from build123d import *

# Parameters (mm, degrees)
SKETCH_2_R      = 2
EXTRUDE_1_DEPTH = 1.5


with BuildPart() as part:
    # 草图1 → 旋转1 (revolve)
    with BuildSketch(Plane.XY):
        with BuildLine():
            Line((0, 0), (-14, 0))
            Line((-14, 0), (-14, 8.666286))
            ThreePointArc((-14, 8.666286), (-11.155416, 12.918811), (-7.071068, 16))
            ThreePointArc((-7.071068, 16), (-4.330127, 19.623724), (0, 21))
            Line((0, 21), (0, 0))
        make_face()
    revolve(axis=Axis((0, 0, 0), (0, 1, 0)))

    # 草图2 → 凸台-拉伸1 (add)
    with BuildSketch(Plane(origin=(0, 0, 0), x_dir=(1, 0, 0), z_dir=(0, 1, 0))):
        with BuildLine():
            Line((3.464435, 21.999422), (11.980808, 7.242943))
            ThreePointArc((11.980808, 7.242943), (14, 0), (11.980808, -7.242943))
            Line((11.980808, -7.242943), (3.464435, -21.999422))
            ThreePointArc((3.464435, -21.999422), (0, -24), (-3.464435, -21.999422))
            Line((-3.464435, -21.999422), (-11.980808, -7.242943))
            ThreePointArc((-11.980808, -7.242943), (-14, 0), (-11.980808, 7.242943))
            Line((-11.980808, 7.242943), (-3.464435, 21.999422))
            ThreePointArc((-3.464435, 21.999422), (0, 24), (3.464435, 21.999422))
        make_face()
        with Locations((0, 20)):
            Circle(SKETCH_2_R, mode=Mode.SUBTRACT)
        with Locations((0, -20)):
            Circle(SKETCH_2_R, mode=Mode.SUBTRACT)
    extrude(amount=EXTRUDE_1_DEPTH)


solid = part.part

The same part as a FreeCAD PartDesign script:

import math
import FreeCAD as App
import Part
import Sketcher
Q = App.Units.Quantity

doc = App.newDocument("Part")
body = doc.addObject("PartDesign::Body", "Body")

# Sketch on XY plane
sketch1 = doc.addObject("Sketcher::SketchObject", "Sketch")
body.addObject(sketch1)
sketch1.AttachmentSupport = (doc.XY_Plane, [""])
sketch1.MapMode = "FlatFace"
sketch1.addGeometry(Part.LineSegment(App.Vector(-14, 0, 0), App.Vector(0, 0, 0)), False)
sketch1.addGeometry(Part.LineSegment(App.Vector(0, 0, 0), App.Vector(0, 21, 0)), False)
sketch1.addGeometry(Part.ArcOfCircle(Part.Circle(App.Vector(0, 13, 0), App.Vector(0, 0, 1), 8), math.radians(90), math.radians(161)), False)
sketch1.addGeometry(Part.ArcOfCircle(Part.Circle(App.Vector(0, 2, 0), App.Vector(0, 0, 1), 15), math.radians(117), math.radians(156)), False)
sketch1.addGeometry(Part.LineSegment(App.Vector(-14, 9, 0), App.Vector(-14, 0, 0)), False)
sketch1.addConstraint(Sketcher.Constraint("Coincident", 0, 2, 1, 1))
sketch1.addConstraint(Sketcher.Constraint("Coincident", 1, 2, 2, 1))
sketch1.addConstraint(Sketcher.Constraint("Coincident", 2, 2, 3, 1))
sketch1.addConstraint(Sketcher.Constraint("Coincident", 3, 2, 4, 1))
sketch1.addConstraint(Sketcher.Constraint("Coincident", 4, 2, 0, 1))
sketch1.addConstraint(Sketcher.Constraint("Horizontal", 0))
sketch1.addConstraint(Sketcher.Constraint("Vertical", 1))
sketch1.addConstraint(Sketcher.Constraint("Vertical", 4))
sketch1.addConstraint(Sketcher.Constraint("Coincident", 0, 2, -1, 1))
sketch1.addConstraint(Sketcher.Constraint("PointOnObject", 2, 3, -2))
sketch1.addConstraint(Sketcher.Constraint("Radius", 2, Q("7.500002 mm")))
sketch1.addConstraint(Sketcher.Constraint("DistanceX", 0, 1, 0, 2, Q("14 mm")))
sketch1.addConstraint(Sketcher.Constraint("DistanceY", 1, 1, 1, 2, Q("21 mm")))
sketch1.addConstraint(Sketcher.Constraint("DistanceY", -1, 1, 2, 2, Q("16 mm")))
sketch1.addConstraint(Sketcher.Constraint("Radius", 3, Q("15.346948 mm")))
sketch1.addConstraint(Sketcher.Constraint("DistanceY", 4, 2, 4, 1, Q("8.666286 mm")))
revolution = doc.addObject("PartDesign::Revolution", "Revolution")
body.addObject(revolution)
revolution.Profile = sketch1
revolution.ReferenceAxis = (sketch1, ["V_Axis"])
revolution.Angle = 360

# Sketch on XZ plane
sketch2 = doc.addObject("Sketcher::SketchObject", "Sketch001")
body.addObject(sketch2)
sketch2.AttachmentSupport = (doc.XZ_Plane, [""])
sketch2.MapMode = "FlatFace"
sketch2.addGeometry(Part.LineSegment(App.Vector(11.980808, -7.242943, 0), App.Vector(3.464435, -21.999422, 0)), False)
sketch2.addGeometry(Part.ArcOfCircle(Part.Circle(App.Vector(0, -20, 0), App.Vector(0, 0, 1), 4), math.radians(-150.009563), math.radians(-29.990437)), False)
sketch2.addGeometry(Part.LineSegment(App.Vector(-3.464435, -21.999422, 0), App.Vector(-11.980808, -7.242943, 0)), False)
sketch2.addGeometry(Part.ArcOfCircle(Part.Circle(App.Vector(-0.000004, 0, 0), App.Vector(0, 0, 1), 13.999996), math.radians(148.845122), math.radians(211.154878)), False)
sketch2.addGeometry(Part.LineSegment(App.Vector(-11.980808, 7.242943, 0), App.Vector(-3.464435, 21.999422, 0)), False)
sketch2.addGeometry(Part.ArcOfCircle(Part.Circle(App.Vector(0, 20, 0), App.Vector(0, 0, 1), 4), math.radians(29.990437), math.radians(150.009563)), False)
sketch2.addGeometry(Part.LineSegment(App.Vector(3.464435, 21.999422, 0), App.Vector(11.980808, 7.242943, 0)), False)
sketch2.addGeometry(Part.ArcOfCircle(Part.Circle(App.Vector(0.000004, 0, 0), App.Vector(0, 0, 1), 13.999996), math.radians(-31.154878), math.radians(31.154878)), False)
sketch2.addGeometry(Part.Circle(App.Vector(0, 20, 0), App.Vector(0, 0, 1), 2), False)
sketch2.addGeometry(Part.Circle(App.Vector(0, -20, 0), App.Vector(0, 0, 1), 2), False)
sketch2.addConstraint(Sketcher.Constraint("Coincident", 0, 2, 1, 2))
sketch2.addConstraint(Sketcher.Constraint("Coincident", 1, 1, 2, 1))
sketch2.addConstraint(Sketcher.Constraint("Coincident", 2, 2, 3, 2))
sketch2.addConstraint(Sketcher.Constraint("Coincident", 3, 1, 4, 1))
sketch2.addConstraint(Sketcher.Constraint("Coincident", 4, 2, 5, 2))
sketch2.addConstraint(Sketcher.Constraint("Coincident", 5, 1, 6, 1))
sketch2.addConstraint(Sketcher.Constraint("Coincident", 6, 2, 7, 2))
sketch2.addConstraint(Sketcher.Constraint("Coincident", 7, 1, 0, 1))
sketch2.addConstraint(Sketcher.Constraint("Coincident", 3, 3, -1, 1))
sketch2.addConstraint(Sketcher.Constraint("Coincident", 7, 3, -1, 1))
sketch2.addConstraint(Sketcher.Constraint("Coincident", 8, 3, 5, 3))
sketch2.addConstraint(Sketcher.Constraint("Coincident", 9, 3, 1, 3))
sketch2.addConstraint(Sketcher.Constraint("PointOnObject", 1, 3, -2))
sketch2.addConstraint(Sketcher.Constraint("PointOnObject", 5, 3, -2))
sketch2.addConstraint(Sketcher.Constraint("Diameter", 8, Q("4 mm")))
sketch2.addConstraint(Sketcher.Constraint("Diameter", 9, Q("4 mm")))
sketch2.addConstraint(Sketcher.Constraint("Radius", 1, Q("4 mm")))
sketch2.addConstraint(Sketcher.Constraint("Radius", 5, Q("4 mm")))
sketch2.addConstraint(Sketcher.Constraint("DistanceY", 1, 3, -1, 1, Q("20 mm")))
sketch2.addConstraint(Sketcher.Constraint("DistanceY", -1, 1, 5, 3, Q("20 mm")))
sketch2.addConstraint(Sketcher.Constraint("Radius", 3, Q("13.999996 mm")))
sketch2.addConstraint(Sketcher.Constraint("Radius", 7, Q("13.999996 mm")))
sketch2.addConstraint(Sketcher.Constraint("DistanceY", 0, 2, -1, 1, Q("21.999422 mm")))
sketch2.addConstraint(Sketcher.Constraint("DistanceY", -1, 1, 4, 2, Q("21.999422 mm")))
sketch2.addConstraint(Sketcher.Constraint("DistanceY", 1, 1, 1, 3, Q("1.999422 mm")))
sketch2.addConstraint(Sketcher.Constraint("DistanceY", 1, 1, 2, 2, Q("14.756479 mm")))
sketch2.addConstraint(Sketcher.Constraint("DistanceY", 3, 1, 4, 2, Q("14.756479 mm")))
sketch2.addConstraint(Sketcher.Constraint("DistanceY", 5, 3, 5, 1, Q("1.999422 mm")))
sketch2.addConstraint(Sketcher.Constraint("DistanceY", 6, 2, 5, 1, Q("14.756479 mm")))
sketch2.addConstraint(Sketcher.Constraint("DistanceY", 0, 2, 7, 1, Q("14.756479 mm")))
pad1 = doc.addObject("PartDesign::Pad", "Pad")
body.addObject(pad1)
pad1.Profile = sketch2
pad1.Length = 1.5
pad1.Reversed = True

doc.recompute()
